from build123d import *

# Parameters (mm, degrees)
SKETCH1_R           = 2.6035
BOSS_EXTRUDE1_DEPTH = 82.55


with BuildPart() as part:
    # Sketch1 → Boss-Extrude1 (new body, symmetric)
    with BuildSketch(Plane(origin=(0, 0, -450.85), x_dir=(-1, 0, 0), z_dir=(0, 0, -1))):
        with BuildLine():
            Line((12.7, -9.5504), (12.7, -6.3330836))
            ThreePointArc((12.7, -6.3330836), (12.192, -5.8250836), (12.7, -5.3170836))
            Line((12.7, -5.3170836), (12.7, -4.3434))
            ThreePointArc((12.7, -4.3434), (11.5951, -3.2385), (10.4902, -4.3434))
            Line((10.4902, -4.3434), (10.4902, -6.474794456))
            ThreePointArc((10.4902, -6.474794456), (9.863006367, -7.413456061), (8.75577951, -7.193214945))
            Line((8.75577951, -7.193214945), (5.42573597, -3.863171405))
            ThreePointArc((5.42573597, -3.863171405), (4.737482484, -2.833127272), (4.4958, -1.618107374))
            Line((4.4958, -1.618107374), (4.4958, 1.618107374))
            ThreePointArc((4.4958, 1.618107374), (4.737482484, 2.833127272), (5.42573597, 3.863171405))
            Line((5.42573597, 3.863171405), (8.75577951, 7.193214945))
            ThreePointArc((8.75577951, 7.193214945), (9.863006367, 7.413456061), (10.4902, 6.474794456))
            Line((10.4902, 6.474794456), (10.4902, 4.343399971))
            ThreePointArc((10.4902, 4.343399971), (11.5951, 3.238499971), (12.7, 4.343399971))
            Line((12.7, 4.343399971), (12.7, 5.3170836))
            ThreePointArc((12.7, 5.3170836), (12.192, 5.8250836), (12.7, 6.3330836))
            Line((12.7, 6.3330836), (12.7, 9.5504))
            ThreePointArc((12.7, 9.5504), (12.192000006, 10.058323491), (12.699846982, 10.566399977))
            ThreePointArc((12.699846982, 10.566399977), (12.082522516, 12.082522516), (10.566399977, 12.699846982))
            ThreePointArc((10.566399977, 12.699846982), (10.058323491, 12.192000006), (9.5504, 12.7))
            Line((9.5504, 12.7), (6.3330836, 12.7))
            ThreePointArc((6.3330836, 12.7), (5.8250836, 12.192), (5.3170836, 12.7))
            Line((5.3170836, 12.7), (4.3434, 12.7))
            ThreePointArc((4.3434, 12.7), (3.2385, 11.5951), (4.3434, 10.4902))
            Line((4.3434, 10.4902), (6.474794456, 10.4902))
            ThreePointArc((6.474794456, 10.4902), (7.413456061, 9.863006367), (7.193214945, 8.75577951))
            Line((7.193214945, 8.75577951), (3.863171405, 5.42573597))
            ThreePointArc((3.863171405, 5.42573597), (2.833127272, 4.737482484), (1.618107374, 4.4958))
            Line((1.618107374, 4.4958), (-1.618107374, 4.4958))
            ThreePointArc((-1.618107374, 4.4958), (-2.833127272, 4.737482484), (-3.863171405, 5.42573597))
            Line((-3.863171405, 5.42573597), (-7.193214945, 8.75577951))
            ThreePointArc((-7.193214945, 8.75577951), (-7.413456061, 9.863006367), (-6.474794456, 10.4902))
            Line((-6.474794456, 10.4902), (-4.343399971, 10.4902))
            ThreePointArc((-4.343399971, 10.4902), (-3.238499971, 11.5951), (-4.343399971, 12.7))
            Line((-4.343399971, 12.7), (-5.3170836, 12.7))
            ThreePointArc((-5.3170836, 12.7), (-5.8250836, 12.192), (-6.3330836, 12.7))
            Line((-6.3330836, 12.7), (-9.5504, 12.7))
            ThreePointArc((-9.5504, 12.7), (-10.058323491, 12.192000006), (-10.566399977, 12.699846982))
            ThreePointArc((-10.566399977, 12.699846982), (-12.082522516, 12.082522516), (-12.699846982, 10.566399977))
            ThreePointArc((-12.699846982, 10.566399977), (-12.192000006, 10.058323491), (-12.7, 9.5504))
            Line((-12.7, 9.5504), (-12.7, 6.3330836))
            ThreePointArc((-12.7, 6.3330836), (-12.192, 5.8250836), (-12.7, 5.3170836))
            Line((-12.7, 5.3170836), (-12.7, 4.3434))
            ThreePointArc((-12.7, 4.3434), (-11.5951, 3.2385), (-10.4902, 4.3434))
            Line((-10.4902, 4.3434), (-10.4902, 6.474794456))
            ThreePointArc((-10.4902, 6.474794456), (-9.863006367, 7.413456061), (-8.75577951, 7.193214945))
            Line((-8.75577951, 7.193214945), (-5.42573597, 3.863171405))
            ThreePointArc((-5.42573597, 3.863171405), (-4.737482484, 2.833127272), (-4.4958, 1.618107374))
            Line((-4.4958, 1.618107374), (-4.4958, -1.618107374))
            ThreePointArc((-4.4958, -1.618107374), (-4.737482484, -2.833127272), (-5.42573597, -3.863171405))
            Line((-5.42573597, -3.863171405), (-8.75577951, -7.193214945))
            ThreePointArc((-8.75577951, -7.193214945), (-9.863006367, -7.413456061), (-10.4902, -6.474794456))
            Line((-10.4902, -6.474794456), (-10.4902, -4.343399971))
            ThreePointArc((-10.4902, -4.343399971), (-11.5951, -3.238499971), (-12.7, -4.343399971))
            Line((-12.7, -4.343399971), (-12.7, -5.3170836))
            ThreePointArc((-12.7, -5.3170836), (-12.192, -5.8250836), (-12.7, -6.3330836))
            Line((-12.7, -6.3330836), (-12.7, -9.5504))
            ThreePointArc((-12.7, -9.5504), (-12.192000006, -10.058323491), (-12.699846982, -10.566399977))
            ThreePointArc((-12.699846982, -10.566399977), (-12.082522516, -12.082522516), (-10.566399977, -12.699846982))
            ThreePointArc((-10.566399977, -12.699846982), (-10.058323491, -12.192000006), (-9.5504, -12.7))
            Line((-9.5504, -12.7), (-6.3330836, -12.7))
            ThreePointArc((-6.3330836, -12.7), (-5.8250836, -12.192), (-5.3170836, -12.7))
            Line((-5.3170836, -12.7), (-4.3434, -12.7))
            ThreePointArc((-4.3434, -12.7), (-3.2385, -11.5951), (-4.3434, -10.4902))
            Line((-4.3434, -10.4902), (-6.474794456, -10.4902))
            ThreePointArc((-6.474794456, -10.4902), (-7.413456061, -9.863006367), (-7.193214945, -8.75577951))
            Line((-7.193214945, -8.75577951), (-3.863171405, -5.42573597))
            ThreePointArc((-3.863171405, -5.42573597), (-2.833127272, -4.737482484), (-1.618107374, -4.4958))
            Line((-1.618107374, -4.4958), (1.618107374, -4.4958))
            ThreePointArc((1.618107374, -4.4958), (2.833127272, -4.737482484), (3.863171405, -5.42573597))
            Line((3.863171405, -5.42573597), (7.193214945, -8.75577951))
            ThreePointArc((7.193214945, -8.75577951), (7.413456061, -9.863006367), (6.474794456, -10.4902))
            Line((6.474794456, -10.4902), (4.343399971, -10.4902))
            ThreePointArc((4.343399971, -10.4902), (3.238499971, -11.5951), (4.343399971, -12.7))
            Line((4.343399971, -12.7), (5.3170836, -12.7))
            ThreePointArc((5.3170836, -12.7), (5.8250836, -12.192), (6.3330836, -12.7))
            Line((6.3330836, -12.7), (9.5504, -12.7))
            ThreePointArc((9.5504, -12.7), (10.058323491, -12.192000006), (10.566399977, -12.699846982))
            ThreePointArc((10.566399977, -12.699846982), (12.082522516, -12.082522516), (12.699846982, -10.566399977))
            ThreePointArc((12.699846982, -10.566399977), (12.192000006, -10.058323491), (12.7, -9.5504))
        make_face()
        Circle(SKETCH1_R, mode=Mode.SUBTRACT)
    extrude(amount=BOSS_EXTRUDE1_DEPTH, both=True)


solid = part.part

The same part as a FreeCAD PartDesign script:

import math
import FreeCAD as App
import Part
import Sketcher

V = App.Vector
Q = App.Units.Quantity

doc = App.newDocument("Part")
body = doc.addObject("PartDesign::Body", "Body")

# Sketch on XY plane
sketch1 = body.newObject("Sketcher::SketchObject", "Sketch")
sketch1.AttachmentSupport = (doc.getObject("XY_Plane"), [""])
sketch1.MapMode = "FlatFace"
sketch1.AttachmentOffset = App.Placement(V(0, 0, -17.75 * 25.4), App.Rotation())
sketch1.addGeometry([
    Part.LineSegment(V(-12.7, -9.6, 0), V(-12.7, -6.3, 0)),  # 0
    Part.ArcOfCircle(Part.Circle(V(-12.7, -5.8, 0), V(0, 0, 1), 0.5), math.radians(-90), math.radians(90)),  # 1
    Part.LineSegment(V(-12.7, -5.3, 0), V(-12.7, -4.3, 0)),  # 2
    Part.ArcOfCircle(Part.Circle(V(-11.6, -4.3, 0), V(0, 0, 1), 1.1), math.radians(0), math.radians(180)),  # 3
    Part.LineSegment(V(-10.5, -4.3, 0), V(-10.5, -6.5, 0)),  # 4
    Part.ArcOfCircle(Part.Circle(V(-9.5, -6.5, 0), V(0, 0, 1), 1), math.radians(180), math.radians(315)),  # 5
    Part.LineSegment(V(-8.8, -7.2, 0), V(-5.4, -3.9, 0)),  # 6
    Part.ArcOfCircle(Part.Circle(V(-7.7, -1.6, 0), V(0, 0, 1), 3.2), math.radians(-45), math.radians(0)),  # 7
    Part.LineSegment(V(-4.5, -1.6, 0), V(-4.5, 1.6, 0)),  # 8
    Part.ArcOfCircle(Part.Circle(V(-7.7, 1.6, 0), V(0, 0, 1), 3.2), math.radians(0), math.radians(45)),  # 9
    Part.LineSegment(V(-5.4, 3.9, 0), V(-8.8, 7.2, 0)),  # 10
    Part.ArcOfCircle(Part.Circle(V(-9.5, 6.5, 0), V(0, 0, 1), 1), math.radians(45), math.radians(180)),  # 11
    Part.LineSegment(V(-10.5, 6.5, 0), V(-10.5, 4.3, 0)),  # 12
    Part.ArcOfCircle(Part.Circle(V(-11.6, 4.3, 0), V(0, 0, 1), 1.1), math.radians(180), math.radians(360)),  # 13
    Part.LineSegment(V(-12.7, 4.3, 0), V(-12.7, 5.3, 0)),  # 14
    Part.ArcOfCircle(Part.Circle(V(-12.7, 5.8, 0), V(0, 0, 1), 0.5), math.radians(-90), math.radians(90)),  # 15
    Part.LineSegment(V(-12.7, 6.3, 0), V(-12.7, 9.6, 0)),  # 16
    Part.ArcOfCircle(Part.Circle(V(-12.7, 10.1, 0), V(0, 0, 1), 0.5), math.radians(-90), math.radians(90)),  # 17
    Part.ArcOfCircle(Part.Circle(V(-10.6, 10.6, 0), V(0, 0, 1), 2.1), math.radians(89), math.radians(181)),  # 18
    Part.ArcOfCircle(Part.Circle(V(-10.1, 12.7, 0), V(0, 0, 1), 0.5), math.radians(-180), math.radians(0)),  # 19
    Part.LineSegment(V(-9.6, 12.7, 0), V(-6.3, 12.7, 0)),  # 20
    Part.ArcOfCircle(Part.Circle(V(-5.8, 12.7, 0), V(0, 0, 1), 0.5), math.radians(180), math.radians(360)),  # 21
    Part.LineSegment(V(-5.3, 12.7, 0), V(-4.3, 12.7, 0)),  # 22
    Part.ArcOfCircle(Part.Circle(V(-4.3, 11.6, 0), V(0, 0, 1), 1.1), math.radians(-90), math.radians(90)),  # 23
    Part.LineSegment(V(-4.3, 10.5, 0), V(-6.5, 10.5, 0)),  # 24
    Part.ArcOfCircle(Part.Circle(V(-6.5, 9.5, 0), V(0, 0, 1), 1), math.radians(90), math.radians(225)),  # 25
    Part.LineSegment(V(-7.2, 8.8, 0), V(-3.9, 5.4, 0)),  # 26
    Part.ArcOfCircle(Part.Circle(V(-1.6, 7.7, 0), V(0, 0, 1), 3.2), math.radians(-135), math.radians(-90)),  # 27
    Part.LineSegment(V(-1.6, 4.5, 0), V(1.6, 4.5, 0)),  # 28
    Part.ArcOfCircle(Part.Circle(V(1.6, 7.7, 0), V(0, 0, 1), 3.2), math.radians(-90), math.radians(-45)),  # 29
    Part.LineSegment(V(3.9, 5.4, 0), V(7.2, 8.8, 0)),  # 30
    Part.ArcOfCircle(Part.Circle(V(6.5, 9.5, 0), V(0, 0, 1), 1), math.radians(-45), math.radians(90)),  # 31
    Part.LineSegment(V(6.5, 10.5, 0), V(4.3, 10.5, 0)),  # 32
    Part.ArcOfCircle(Part.Circle(V(4.3, 11.6, 0), V(0, 0, 1), 1.1), math.radians(90), math.radians(270)),  # 33
    Part.LineSegment(V(4.3, 12.7, 0), V(5.3, 12.7, 0)),  # 34
    Part.ArcOfCircle(Part.Circle(V(5.8, 12.7, 0), V(0, 0, 1), 0.5), math.radians(180), math.radians(360)),  # 35
    Part.LineSegment(V(6.3, 12.7, 0), V(9.6, 12.7, 0)),  # 36
    Part.ArcOfCircle(Part.Circle(V(10.1, 12.7, 0), V(0, 0, 1), 0.5), math.radians(180), math.radians(360)),  # 37
    Part.ArcOfCircle(Part.Circle(V(10.6, 10.6, 0), V(0, 0, 1), 2.1), math.radians(-1), math.radians(91)),  # 38
    Part.ArcOfCircle(Part.Circle(V(12.7, 10.1, 0), V(0, 0, 1), 0.5), math.radians(90), math.radians(270)),  # 39
    Part.LineSegment(V(12.7, 9.6, 0), V(12.7, 6.3, 0)),  # 40
    Part.ArcOfCircle(Part.Circle(V(12.7, 5.8, 0), V(0, 0, 1), 0.5), math.radians(90), math.radians(270)),  # 41
    Part.LineSegment(V(12.7, 5.3, 0), V(12.7, 4.3, 0)),  # 42
    Part.ArcOfCircle(Part.Circle(V(11.6, 4.3, 0), V(0, 0, 1), 1.1), math.radians(180), math.radians(360)),  # 43
    Part.LineSegment(V(10.5, 4.3, 0), V(10.5, 6.5, 0)),  # 44
    Part.ArcOfCircle(Part.Circle(V(9.5, 6.5, 0), V(0, 0, 1), 1), math.radians(0), math.radians(135)),  # 45
    Part.LineSegment(V(8.8, 7.2, 0), V(5.4, 3.9, 0)),  # 46
    Part.ArcOfCircle(Part.Circle(V(7.7, 1.6, 0), V(0, 0, 1), 3.2), math.radians(135), math.radians(180)),  # 47
    Part.LineSegment(V(4.5, 1.6, 0), V(4.5, -1.6, 0)),  # 48
    Part.ArcOfCircle(Part.Circle(V(7.7, -1.6, 0), V(0, 0, 1), 3.2), math.radians(180), math.radians(225)),  # 49
    Part.LineSegment(V(5.4, -3.9, 0), V(8.8, -7.2, 0)),  # 50
    Part.ArcOfCircle(Part.Circle(V(9.5, -6.5, 0), V(0, 0, 1), 1), math.radians(-135), math.radians(0)),  # 51
    Part.LineSegment(V(10.5, -6.5, 0), V(10.5, -4.3, 0)),  # 52
    Part.ArcOfCircle(Part.Circle(V(11.6, -4.3, 0), V(0, 0, 1), 1.1), math.radians(0), math.radians(180)),  # 53
    Part.LineSegment(V(12.7, -4.3, 0), V(12.7, -5.3, 0)),  # 54
    Part.ArcOfCircle(Part.Circle(V(12.7, -5.8, 0), V(0, 0, 1), 0.5), math.radians(90), math.radians(270)),  # 55
    Part.LineSegment(V(12.7, -6.3, 0), V(12.7, -9.6, 0)),  # 56
    Part.ArcOfCircle(Part.Circle(V(12.7, -10.1, 0), V(0, 0, 1), 0.5), math.radians(90), math.radians(270)),  # 57
    Part.ArcOfCircle(Part.Circle(V(10.6, -10.6, 0), V(0, 0, 1), 2.1), math.radians(-91), math.radians(1)),  # 58
    Part.ArcOfCircle(Part.Circle(V(10.1, -12.7, 0), V(0, 0, 1), 0.5), math.radians(0), math.radians(180)),  # 59
    Part.LineSegment(V(9.6, -12.7, 0), V(6.3, -12.7, 0)),  # 60
    Part.ArcOfCircle(Part.Circle(V(5.8, -12.7, 0), V(0, 0, 1), 0.5), math.radians(0), math.radians(180)),  # 61
    Part.LineSegment(V(5.3, -12.7, 0), V(4.3, -12.7, 0)),  # 62
    Part.ArcOfCircle(Part.Circle(V(4.3, -11.6, 0), V(0, 0, 1), 1.1), math.radians(90), math.radians(270)),  # 63
    Part.LineSegment(V(4.3, -10.5, 0), V(6.5, -10.5, 0)),  # 64
    Part.ArcOfCircle(Part.Circle(V(6.5, -9.5, 0), V(0, 0, 1), 1), math.radians(-90), math.radians(45)),  # 65
    Part.LineSegment(V(7.2, -8.8, 0), V(3.9, -5.4, 0)),  # 66
    Part.ArcOfCircle(Part.Circle(V(1.6, -7.7, 0), V(0, 0, 1), 3.2), math.radians(45), math.radians(90)),  # 67
    Part.LineSegment(V(1.6, -4.5, 0), V(-1.6, -4.5, 0)),  # 68
    Part.ArcOfCircle(Part.Circle(V(-1.6, -7.7, 0), V(0, 0, 1), 3.2), math.radians(90), math.radians(135)),  # 69
    Part.LineSegment(V(-3.9, -5.4, 0), V(-7.2, -8.8, 0)),  # 70
    Part.ArcOfCircle(Part.Circle(V(-6.5, -9.5, 0), V(0, 0, 1), 1), math.radians(135), math.radians(270)),  # 71
    Part.LineSegment(V(-6.5, -10.5, 0), V(-4.3, -10.5, 0)),  # 72
    Part.ArcOfCircle(Part.Circle(V(-4.3, -11.6, 0), V(0, 0, 1), 1.1), math.radians(-90), math.radians(90)),  # 73
    Part.LineSegment(V(-4.3, -12.7, 0), V(-5.3, -12.7, 0)),  # 74
    Part.ArcOfCircle(Part.Circle(V(-5.8, -12.7, 0), V(0, 0, 1), 0.5), math.radians(0), math.radians(180)),  # 75
    Part.LineSegment(V(-6.3, -12.7, 0), V(-9.6, -12.7, 0)),  # 76
    Part.ArcOfCircle(Part.Circle(V(-10.1, -12.7, 0), V(0, 0, 1), 0.5), math.radians(0), math.radians(180)),  # 77
    Part.ArcOfCircle(Part.Circle(V(-10.6, -10.6, 0), V(0, 0, 1), 2.1), math.radians(179), math.radians(271)),  # 78
    Part.ArcOfCircle(Part.Circle(V(-12.7, -10.1, 0), V(0, 0, 1), 0.5), math.radians(-90), math.radians(90)),  # 79
    Part.Circle(V(0, 0, 0), V(0, 0, 1), 2.6),  # 80
], False)
sketch1.addConstraint([
    Sketcher.Constraint("Coincident", 0, 2, 1, 1),
    Sketcher.Constraint("Coincident", 1, 2, 2, 1),
    Sketcher.Constraint("Tangent", 2, 2, 3, 2),
    Sketcher.Constraint("Tangent", 3, 1, 4, 1),
    Sketcher.Constraint("Tangent", 4, 2, 5, 1),
    Sketcher.Constraint("Tangent", 5, 2, 6, 1),
    Sketcher.Constraint("Tangent", 6, 2, 7, 1),
    Sketcher.Constraint("Tangent", 7, 2, 8, 1),
    Sketcher.Constraint("Tangent", 8, 2, 9, 1),
    Sketcher.Constraint("Tangent", 9, 2, 10, 1),
    Sketcher.Constraint("Tangent", 10, 2, 11, 1),
    Sketcher.Constraint("Tangent", 11, 2, 12, 1),
    Sketcher.Constraint("Tangent", 12, 2, 13, 2),
    Sketcher.Constraint("Tangent", 13, 1, 14, 1),
    Sketcher.Constraint("Coincident", 14, 2, 15, 1),
    Sketcher.Constraint("Coincident", 15, 2, 16, 1),
    Sketcher.Constraint("Coincident", 16, 2, 17, 1),
    Sketcher.Constraint("Coincident", 17, 2, 18, 2),
    Sketcher.Constraint("Coincident", 18, 1, 19, 1),
    Sketcher.Constraint("Coincident", 19, 2, 20, 1),
    Sketcher.Constraint("Coincident", 20, 2, 21, 1),
    Sketcher.Constraint("Coincident", 21, 2, 22, 1),
    Sketcher.Constraint("Tangent", 22, 2, 23, 2),
    Sketcher.Constraint("Tangent", 23, 1, 24, 1),
    Sketcher.Constraint("Tangent", 24, 2, 25, 1),
    Sketcher.Constraint("Tangent", 25, 2, 26, 1),
    Sketcher.Constraint("Tangent", 26, 2, 27, 1),
    Sketcher.Constraint("Tangent", 27, 2, 28, 1),
    Sketcher.Constraint("Tangent", 28, 2, 29, 1),
    Sketcher.Constraint("Tangent", 29, 2, 30, 1),
    Sketcher.Constraint("Tangent", 30, 2, 31, 1),
    Sketcher.Constraint("Tangent", 31, 2, 32, 1),
    Sketcher.Constraint("Tangent", 32, 2, 33, 2),
    Sketcher.Constraint("Tangent", 33, 1, 34, 1),
    Sketcher.Constraint("Coincident", 34, 2, 35, 1),
    Sketcher.Constraint("Coincident", 35, 2, 36, 1),
    Sketcher.Constraint("Coincident", 36, 2, 37, 1),
    Sketcher.Constraint("Coincident", 37, 2, 38, 2),
    Sketcher.Constraint("Coincident", 38, 1, 39, 1),
    Sketcher.Constraint("Coincident", 39, 2, 40, 1),
    Sketcher.Constraint("Coincident", 40, 2, 41, 1),
    Sketcher.Constraint("Coincident", 41, 2, 42, 1),
    Sketcher.Constraint("Tangent", 42, 2, 43, 2),
    Sketcher.Constraint("Tangent", 43, 1, 44, 1),
    Sketcher.Constraint("Tangent", 44, 2, 45, 1),
    Sketcher.Constraint("Tangent", 45, 2, 46, 1),
    Sketcher.Constraint("Tangent", 46, 2, 47, 1),
    Sketcher.Constraint("Tangent", 47, 2, 48, 1),
    Sketcher.Constraint("Tangent", 48, 2, 49, 1),
    Sketcher.Constraint("Tangent", 49, 2, 50, 1),
    Sketcher.Constraint("Tangent", 50, 2, 51, 1),
    Sketcher.Constraint("Tangent", 51, 2, 52, 1),
    Sketcher.Constraint("Tangent", 52, 2, 53, 2),
    Sketcher.Constraint("Tangent", 53, 1, 54, 1),
    Sketcher.Constraint("Coincident", 54, 2, 55, 1),
    Sketcher.Constraint("Coincident", 55, 2, 56, 1),
    Sketcher.Constraint("Coincident", 56, 2, 57, 1),
    Sketcher.Constraint("Coincident", 57, 2, 58, 2),
    Sketcher.Constraint("Coincident", 58, 1, 59, 1),
    Sketcher.Constraint("Coincident", 59, 2, 60, 1),
    Sketcher.Constraint("Coincident", 60, 2, 61, 1),
    Sketcher.Constraint("Coincident", 61, 2, 62, 1),
    Sketcher.Constraint("Tangent", 62, 2, 63, 2),
    Sketcher.Constraint("Tangent", 63, 1, 64, 1),
    Sketcher.Constraint("Tangent", 64, 2, 65, 1),
    Sketcher.Constraint("Tangent", 65, 2, 66, 1),
    Sketcher.Constraint("Tangent", 66, 2, 67, 1),
    Sketcher.Constraint("Tangent", 67, 2, 68, 1),
    Sketcher.Constraint("Tangent", 68, 2, 69, 1),
    Sketcher.Constraint("Tangent", 69, 2, 70, 1),
    Sketcher.Constraint("Tangent", 70, 2, 71, 1),
    Sketcher.Constraint("Tangent", 71, 2, 72, 1),
    Sketcher.Constraint("Tangent", 72, 2, 73, 2),
    Sketcher.Constraint("Tangent", 73, 1, 74, 1),
    Sketcher.Constraint("Coincident", 74, 2, 75, 1),
    Sketcher.Constraint("Coincident", 75, 2, 76, 1),
    Sketcher.Constraint("Coincident", 76, 2, 77, 1),
    Sketcher.Constraint("Coincident", 77, 2, 78, 2),
    Sketcher.Constraint("Coincident", 78, 1, 79, 1),
    Sketcher.Constraint("Coincident", 79, 2, 0, 1),
    Sketcher.Constraint("Vertical", 0),
    Sketcher.Constraint("Vertical", 2),
    Sketcher.Constraint("Vertical", 4),
    Sketcher.Constraint("Vertical", 8),
    Sketcher.Constraint("Vertical", 12),
    Sketcher.Constraint("Vertical", 14),
    Sketcher.Constraint("Vertical", 16),
    Sketcher.Constraint("Horizontal", 20),
    Sketcher.Constraint("Horizontal", 22),
    Sketcher.Constraint("Horizontal", 24),
    Sketcher.Constraint("Horizontal", 28),
    Sketcher.Constraint("Horizontal", 32),
    Sketcher.Constraint("Horizontal", 34),
    Sketcher.Constraint("Horizontal", 36),
    Sketcher.Constraint("Vertical", 40),
    Sketcher.Constraint("Vertical", 42),
    Sketcher.Constraint("Vertical", 44),
    Sketcher.Constraint("Vertical", 48),
    Sketcher.Constraint("Vertical", 52),
    Sketcher.Constraint("Vertical", 54),
    Sketcher.Constraint("Vertical", 56),
    Sketcher.Constraint("Horizontal", 60),
    Sketcher.Constraint("Horizontal", 62),
    Sketcher.Constraint("Horizontal", 64),
    Sketcher.Constraint("Horizontal", 68),
    Sketcher.Constraint("Horizontal", 72),
    Sketcher.Constraint("Horizontal", 74),
    Sketcher.Constraint("Horizontal", 76),
    Sketcher.Constraint("Coincident", 80, 3, -1, 1),
    Sketcher.Constraint("Equal", 7, 9),
    Sketcher.Constraint("Equal", 5, 11),
    Sketcher.Constraint("Equal", 3, 13),
    Sketcher.Constraint("Equal", 1, 15),
    Sketcher.Constraint("Equal", 15, 17),
    Sketcher.Constraint("Equal", 17, 19),
    Sketcher.Constraint("Equal", 19, 21),
    Sketcher.Constraint("Equal", 13, 23),
    Sketcher.Constraint("Equal", 11, 25),
    Sketcher.Constraint("Equal", 9, 27),
    Sketcher.Constraint("Equal", 27, 29),
    Sketcher.Constraint("Equal", 25, 31),
    Sketcher.Constraint("Equal", 23, 33),
    Sketcher.Constraint("Equal", 21, 35),
    Sketcher.Constraint("Equal", 35, 37),
    Sketcher.Constraint("Equal", 18, 38),
    Sketcher.Constraint("Equal", 37, 39),
    Sketcher.Constraint("Equal", 39, 41),
    Sketcher.Constraint("Equal", 33, 43),
    Sketcher.Constraint("Equal", 31, 45),
    Sketcher.Constraint("Equal", 29, 47),
    Sketcher.Constraint("Equal", 47, 49),
    Sketcher.Constraint("Equal", 45, 51),
    Sketcher.Constraint("Equal", 43, 53),
    Sketcher.Constraint("Equal", 41, 55),
    Sketcher.Constraint("Equal", 55, 57),
    Sketcher.Constraint("Equal", 38, 58),
    Sketcher.Constraint("Equal", 57, 59),
    Sketcher.Constraint("Equal", 59, 61),
    Sketcher.Constraint("Equal", 53, 63),
    Sketcher.Constraint("Equal", 51, 65),
    Sketcher.Constraint("Equal", 49, 67),
    Sketcher.Constraint("Equal", 67, 69),
    Sketcher.Constraint("Equal", 65, 71),
    Sketcher.Constraint("Equal", 63, 73),
    Sketcher.Constraint("Equal", 61, 75),
    Sketcher.Constraint("Equal", 75, 77),
    Sketcher.Constraint("Equal", 58, 78),
    Sketcher.Constraint("Equal", 77, 79),
    Sketcher.Constraint("Symmetric", 1, 3, 41, 3, -1, 1),
    Sketcher.Constraint("Symmetric", 3, 3, 43, 3, -1, 1),
    Sketcher.Constraint("Symmetric", 7, 3, 47, 3, -1, 1),
    Sketcher.Constraint("Symmetric", 11, 3, 51, 3, -1, 1),
    Sketcher.Constraint("Symmetric", 15, 3, 55, 3, -1, 1),
    Sketcher.Constraint("Symmetric", 17, 3, 57, 3, -1, 1),
    Sketcher.Constraint("Symmetric", 18, 3, 58, 3, -1, 1),
    Sketcher.Constraint("Symmetric", 19, 3, 59, 3, -1, 1),
    Sketcher.Constraint("Symmetric", 21, 3, 61, 3, -1, 1),
    Sketcher.Constraint("Symmetric", 23, 3, 63, 3, -1, 1),
    Sketcher.Constraint("Symmetric", 27, 3, 67, 3, -1, 1),
    Sketcher.Constraint("Symmetric", 31, 3, 71, 3, -1, 1),
    Sketcher.Constraint("Symmetric", 35, 3, 75, 3, -1, 1),
    Sketcher.Constraint("Symmetric", 37, 3, 77, 3, -1, 1),
    Sketcher.Constraint("Symmetric", 38, 3, 78, 3, -1, 1),
    Sketcher.Constraint("Symmetric", 39, 3, 79, 3, -1, 1),
    Sketcher.Constraint("Symmetric", 25, 3, 31, 3, -2),
    Sketcher.Constraint("Symmetric", 21, 3, 35, 3, -2),
    Sketcher.Constraint("Symmetric", 19, 3, 37, 3, -2),
    Sketcher.Constraint("Symmetric", 18, 3, 38, 3, -2),
    Sketcher.Constraint("Symmetric", 17, 3, 39, 3, -2),
    Sketcher.Constraint("Symmetric", 15, 3, 41, 3, -2),
    Sketcher.Constraint("Symmetric", 13, 3, 43, 3, -2),
    Sketcher.Constraint("Symmetric", 10, 2, 45, 2, -2),
    Sketcher.Constraint("Symmetric", 6, 2, 49, 2, -2),
    Sketcher.Constraint("Symmetric", 66, 2, 69, 2, -2),
    Sketcher.Constraint("Perpendicular", 6, 10),
    Sketcher.Constraint("Parallel", 10, 26),
    Sketcher.Constraint("Perpendicular", 26, 30),
    Sketcher.Constraint("Horizontal", 19, 3, 21, 3),
    Sketcher.Constraint("Horizontal", 3, 3, 53, 3),
    Sketcher.Constraint("Horizontal", 37, 3, 19, 2),
    Sketcher.Constraint("Horizontal", 20, 2, 21, 2),
    Sketcher.Constraint("Horizontal", 34, 2, 35, 2),
    Sketcher.Constraint("Horizontal", 77, 3, 59, 2),
    Sketcher.Constraint("Horizontal", 74, 2, 75, 2),
    Sketcher.Constraint("Vertical", 15, 3, 17, 3),
    Sketcher.Constraint("Vertical", 33, 3, 63, 3),
    Sketcher.Constraint("Vertical", 23, 3, 73, 3),
    Sketcher.Constraint("Vertical", 79, 3, 0, 2),
    Sketcher.Constraint("Vertical", 0, 2, 1, 2),
    Sketcher.Constraint("Vertical", 14, 2, 15, 2),
    Sketcher.Constraint("Vertical", 57, 3, 39, 2),
    Sketcher.Constraint("Vertical", 54, 2, 55, 2),
    Sketcher.Constraint("Equal", 76, 0),
    Sketcher.Constraint("Equal", 74, 2),
    Sketcher.Constraint("Equal", 72, 4),
    Sketcher.Constraint("Equal", 68, 8),
    Sketcher.Constraint("Equal", 10, 26),
    Sketcher.Constraint("Radius", 1, Q("0.02 in")),
    Sketcher.Constraint("Radius", 5, Q("0.04 in")),
    Sketcher.Constraint("Diameter", 80, Q("0.205 in")),
    Sketcher.Constraint("Radius", 7, Q("0.125 in")),
    Sketcher.Constraint("Radius", 18, Q("0.083 in")),
    Sketcher.Constraint("DistanceX", 1, 3, -1, 1, Q("0.5 in")),
    Sketcher.Constraint("DistanceY", -1, 1, 19, 3, Q("0.5 in")),
    Sketcher.Constraint("Radius", 3, Q("0.0435 in")),
    Sketcher.Constraint("DistanceY", 3, 3, -1, 1, Q("0.171 in")),
    Sketcher.Constraint("DistanceX", 7, 3, -1, 1, Q("0.302 in")),
    Sketcher.Constraint("DistanceY", -1, 1, 17, 3, Q("0.396 in")),
    Sketcher.Constraint("DistanceX", 18, 3, -1, 1, Q("0.417 in")),
    Sketcher.Constraint("DistanceY", -1, 1, 18, 3, Q("0.417 in")),
    Sketcher.Constraint("DistanceX", 20, 1, 20, 2, Q("3.217316 mm")),
    Sketcher.Constraint("DistanceX", 24, 2, 24, 1, Q("2.131394 mm")),
])
pad1 = body.newObject("PartDesign::Pad", "Pad")
pad1.Profile = sketch1
pad1.Length = Q("6.5 in")
pad1.Midplane = True

doc.recompute()
